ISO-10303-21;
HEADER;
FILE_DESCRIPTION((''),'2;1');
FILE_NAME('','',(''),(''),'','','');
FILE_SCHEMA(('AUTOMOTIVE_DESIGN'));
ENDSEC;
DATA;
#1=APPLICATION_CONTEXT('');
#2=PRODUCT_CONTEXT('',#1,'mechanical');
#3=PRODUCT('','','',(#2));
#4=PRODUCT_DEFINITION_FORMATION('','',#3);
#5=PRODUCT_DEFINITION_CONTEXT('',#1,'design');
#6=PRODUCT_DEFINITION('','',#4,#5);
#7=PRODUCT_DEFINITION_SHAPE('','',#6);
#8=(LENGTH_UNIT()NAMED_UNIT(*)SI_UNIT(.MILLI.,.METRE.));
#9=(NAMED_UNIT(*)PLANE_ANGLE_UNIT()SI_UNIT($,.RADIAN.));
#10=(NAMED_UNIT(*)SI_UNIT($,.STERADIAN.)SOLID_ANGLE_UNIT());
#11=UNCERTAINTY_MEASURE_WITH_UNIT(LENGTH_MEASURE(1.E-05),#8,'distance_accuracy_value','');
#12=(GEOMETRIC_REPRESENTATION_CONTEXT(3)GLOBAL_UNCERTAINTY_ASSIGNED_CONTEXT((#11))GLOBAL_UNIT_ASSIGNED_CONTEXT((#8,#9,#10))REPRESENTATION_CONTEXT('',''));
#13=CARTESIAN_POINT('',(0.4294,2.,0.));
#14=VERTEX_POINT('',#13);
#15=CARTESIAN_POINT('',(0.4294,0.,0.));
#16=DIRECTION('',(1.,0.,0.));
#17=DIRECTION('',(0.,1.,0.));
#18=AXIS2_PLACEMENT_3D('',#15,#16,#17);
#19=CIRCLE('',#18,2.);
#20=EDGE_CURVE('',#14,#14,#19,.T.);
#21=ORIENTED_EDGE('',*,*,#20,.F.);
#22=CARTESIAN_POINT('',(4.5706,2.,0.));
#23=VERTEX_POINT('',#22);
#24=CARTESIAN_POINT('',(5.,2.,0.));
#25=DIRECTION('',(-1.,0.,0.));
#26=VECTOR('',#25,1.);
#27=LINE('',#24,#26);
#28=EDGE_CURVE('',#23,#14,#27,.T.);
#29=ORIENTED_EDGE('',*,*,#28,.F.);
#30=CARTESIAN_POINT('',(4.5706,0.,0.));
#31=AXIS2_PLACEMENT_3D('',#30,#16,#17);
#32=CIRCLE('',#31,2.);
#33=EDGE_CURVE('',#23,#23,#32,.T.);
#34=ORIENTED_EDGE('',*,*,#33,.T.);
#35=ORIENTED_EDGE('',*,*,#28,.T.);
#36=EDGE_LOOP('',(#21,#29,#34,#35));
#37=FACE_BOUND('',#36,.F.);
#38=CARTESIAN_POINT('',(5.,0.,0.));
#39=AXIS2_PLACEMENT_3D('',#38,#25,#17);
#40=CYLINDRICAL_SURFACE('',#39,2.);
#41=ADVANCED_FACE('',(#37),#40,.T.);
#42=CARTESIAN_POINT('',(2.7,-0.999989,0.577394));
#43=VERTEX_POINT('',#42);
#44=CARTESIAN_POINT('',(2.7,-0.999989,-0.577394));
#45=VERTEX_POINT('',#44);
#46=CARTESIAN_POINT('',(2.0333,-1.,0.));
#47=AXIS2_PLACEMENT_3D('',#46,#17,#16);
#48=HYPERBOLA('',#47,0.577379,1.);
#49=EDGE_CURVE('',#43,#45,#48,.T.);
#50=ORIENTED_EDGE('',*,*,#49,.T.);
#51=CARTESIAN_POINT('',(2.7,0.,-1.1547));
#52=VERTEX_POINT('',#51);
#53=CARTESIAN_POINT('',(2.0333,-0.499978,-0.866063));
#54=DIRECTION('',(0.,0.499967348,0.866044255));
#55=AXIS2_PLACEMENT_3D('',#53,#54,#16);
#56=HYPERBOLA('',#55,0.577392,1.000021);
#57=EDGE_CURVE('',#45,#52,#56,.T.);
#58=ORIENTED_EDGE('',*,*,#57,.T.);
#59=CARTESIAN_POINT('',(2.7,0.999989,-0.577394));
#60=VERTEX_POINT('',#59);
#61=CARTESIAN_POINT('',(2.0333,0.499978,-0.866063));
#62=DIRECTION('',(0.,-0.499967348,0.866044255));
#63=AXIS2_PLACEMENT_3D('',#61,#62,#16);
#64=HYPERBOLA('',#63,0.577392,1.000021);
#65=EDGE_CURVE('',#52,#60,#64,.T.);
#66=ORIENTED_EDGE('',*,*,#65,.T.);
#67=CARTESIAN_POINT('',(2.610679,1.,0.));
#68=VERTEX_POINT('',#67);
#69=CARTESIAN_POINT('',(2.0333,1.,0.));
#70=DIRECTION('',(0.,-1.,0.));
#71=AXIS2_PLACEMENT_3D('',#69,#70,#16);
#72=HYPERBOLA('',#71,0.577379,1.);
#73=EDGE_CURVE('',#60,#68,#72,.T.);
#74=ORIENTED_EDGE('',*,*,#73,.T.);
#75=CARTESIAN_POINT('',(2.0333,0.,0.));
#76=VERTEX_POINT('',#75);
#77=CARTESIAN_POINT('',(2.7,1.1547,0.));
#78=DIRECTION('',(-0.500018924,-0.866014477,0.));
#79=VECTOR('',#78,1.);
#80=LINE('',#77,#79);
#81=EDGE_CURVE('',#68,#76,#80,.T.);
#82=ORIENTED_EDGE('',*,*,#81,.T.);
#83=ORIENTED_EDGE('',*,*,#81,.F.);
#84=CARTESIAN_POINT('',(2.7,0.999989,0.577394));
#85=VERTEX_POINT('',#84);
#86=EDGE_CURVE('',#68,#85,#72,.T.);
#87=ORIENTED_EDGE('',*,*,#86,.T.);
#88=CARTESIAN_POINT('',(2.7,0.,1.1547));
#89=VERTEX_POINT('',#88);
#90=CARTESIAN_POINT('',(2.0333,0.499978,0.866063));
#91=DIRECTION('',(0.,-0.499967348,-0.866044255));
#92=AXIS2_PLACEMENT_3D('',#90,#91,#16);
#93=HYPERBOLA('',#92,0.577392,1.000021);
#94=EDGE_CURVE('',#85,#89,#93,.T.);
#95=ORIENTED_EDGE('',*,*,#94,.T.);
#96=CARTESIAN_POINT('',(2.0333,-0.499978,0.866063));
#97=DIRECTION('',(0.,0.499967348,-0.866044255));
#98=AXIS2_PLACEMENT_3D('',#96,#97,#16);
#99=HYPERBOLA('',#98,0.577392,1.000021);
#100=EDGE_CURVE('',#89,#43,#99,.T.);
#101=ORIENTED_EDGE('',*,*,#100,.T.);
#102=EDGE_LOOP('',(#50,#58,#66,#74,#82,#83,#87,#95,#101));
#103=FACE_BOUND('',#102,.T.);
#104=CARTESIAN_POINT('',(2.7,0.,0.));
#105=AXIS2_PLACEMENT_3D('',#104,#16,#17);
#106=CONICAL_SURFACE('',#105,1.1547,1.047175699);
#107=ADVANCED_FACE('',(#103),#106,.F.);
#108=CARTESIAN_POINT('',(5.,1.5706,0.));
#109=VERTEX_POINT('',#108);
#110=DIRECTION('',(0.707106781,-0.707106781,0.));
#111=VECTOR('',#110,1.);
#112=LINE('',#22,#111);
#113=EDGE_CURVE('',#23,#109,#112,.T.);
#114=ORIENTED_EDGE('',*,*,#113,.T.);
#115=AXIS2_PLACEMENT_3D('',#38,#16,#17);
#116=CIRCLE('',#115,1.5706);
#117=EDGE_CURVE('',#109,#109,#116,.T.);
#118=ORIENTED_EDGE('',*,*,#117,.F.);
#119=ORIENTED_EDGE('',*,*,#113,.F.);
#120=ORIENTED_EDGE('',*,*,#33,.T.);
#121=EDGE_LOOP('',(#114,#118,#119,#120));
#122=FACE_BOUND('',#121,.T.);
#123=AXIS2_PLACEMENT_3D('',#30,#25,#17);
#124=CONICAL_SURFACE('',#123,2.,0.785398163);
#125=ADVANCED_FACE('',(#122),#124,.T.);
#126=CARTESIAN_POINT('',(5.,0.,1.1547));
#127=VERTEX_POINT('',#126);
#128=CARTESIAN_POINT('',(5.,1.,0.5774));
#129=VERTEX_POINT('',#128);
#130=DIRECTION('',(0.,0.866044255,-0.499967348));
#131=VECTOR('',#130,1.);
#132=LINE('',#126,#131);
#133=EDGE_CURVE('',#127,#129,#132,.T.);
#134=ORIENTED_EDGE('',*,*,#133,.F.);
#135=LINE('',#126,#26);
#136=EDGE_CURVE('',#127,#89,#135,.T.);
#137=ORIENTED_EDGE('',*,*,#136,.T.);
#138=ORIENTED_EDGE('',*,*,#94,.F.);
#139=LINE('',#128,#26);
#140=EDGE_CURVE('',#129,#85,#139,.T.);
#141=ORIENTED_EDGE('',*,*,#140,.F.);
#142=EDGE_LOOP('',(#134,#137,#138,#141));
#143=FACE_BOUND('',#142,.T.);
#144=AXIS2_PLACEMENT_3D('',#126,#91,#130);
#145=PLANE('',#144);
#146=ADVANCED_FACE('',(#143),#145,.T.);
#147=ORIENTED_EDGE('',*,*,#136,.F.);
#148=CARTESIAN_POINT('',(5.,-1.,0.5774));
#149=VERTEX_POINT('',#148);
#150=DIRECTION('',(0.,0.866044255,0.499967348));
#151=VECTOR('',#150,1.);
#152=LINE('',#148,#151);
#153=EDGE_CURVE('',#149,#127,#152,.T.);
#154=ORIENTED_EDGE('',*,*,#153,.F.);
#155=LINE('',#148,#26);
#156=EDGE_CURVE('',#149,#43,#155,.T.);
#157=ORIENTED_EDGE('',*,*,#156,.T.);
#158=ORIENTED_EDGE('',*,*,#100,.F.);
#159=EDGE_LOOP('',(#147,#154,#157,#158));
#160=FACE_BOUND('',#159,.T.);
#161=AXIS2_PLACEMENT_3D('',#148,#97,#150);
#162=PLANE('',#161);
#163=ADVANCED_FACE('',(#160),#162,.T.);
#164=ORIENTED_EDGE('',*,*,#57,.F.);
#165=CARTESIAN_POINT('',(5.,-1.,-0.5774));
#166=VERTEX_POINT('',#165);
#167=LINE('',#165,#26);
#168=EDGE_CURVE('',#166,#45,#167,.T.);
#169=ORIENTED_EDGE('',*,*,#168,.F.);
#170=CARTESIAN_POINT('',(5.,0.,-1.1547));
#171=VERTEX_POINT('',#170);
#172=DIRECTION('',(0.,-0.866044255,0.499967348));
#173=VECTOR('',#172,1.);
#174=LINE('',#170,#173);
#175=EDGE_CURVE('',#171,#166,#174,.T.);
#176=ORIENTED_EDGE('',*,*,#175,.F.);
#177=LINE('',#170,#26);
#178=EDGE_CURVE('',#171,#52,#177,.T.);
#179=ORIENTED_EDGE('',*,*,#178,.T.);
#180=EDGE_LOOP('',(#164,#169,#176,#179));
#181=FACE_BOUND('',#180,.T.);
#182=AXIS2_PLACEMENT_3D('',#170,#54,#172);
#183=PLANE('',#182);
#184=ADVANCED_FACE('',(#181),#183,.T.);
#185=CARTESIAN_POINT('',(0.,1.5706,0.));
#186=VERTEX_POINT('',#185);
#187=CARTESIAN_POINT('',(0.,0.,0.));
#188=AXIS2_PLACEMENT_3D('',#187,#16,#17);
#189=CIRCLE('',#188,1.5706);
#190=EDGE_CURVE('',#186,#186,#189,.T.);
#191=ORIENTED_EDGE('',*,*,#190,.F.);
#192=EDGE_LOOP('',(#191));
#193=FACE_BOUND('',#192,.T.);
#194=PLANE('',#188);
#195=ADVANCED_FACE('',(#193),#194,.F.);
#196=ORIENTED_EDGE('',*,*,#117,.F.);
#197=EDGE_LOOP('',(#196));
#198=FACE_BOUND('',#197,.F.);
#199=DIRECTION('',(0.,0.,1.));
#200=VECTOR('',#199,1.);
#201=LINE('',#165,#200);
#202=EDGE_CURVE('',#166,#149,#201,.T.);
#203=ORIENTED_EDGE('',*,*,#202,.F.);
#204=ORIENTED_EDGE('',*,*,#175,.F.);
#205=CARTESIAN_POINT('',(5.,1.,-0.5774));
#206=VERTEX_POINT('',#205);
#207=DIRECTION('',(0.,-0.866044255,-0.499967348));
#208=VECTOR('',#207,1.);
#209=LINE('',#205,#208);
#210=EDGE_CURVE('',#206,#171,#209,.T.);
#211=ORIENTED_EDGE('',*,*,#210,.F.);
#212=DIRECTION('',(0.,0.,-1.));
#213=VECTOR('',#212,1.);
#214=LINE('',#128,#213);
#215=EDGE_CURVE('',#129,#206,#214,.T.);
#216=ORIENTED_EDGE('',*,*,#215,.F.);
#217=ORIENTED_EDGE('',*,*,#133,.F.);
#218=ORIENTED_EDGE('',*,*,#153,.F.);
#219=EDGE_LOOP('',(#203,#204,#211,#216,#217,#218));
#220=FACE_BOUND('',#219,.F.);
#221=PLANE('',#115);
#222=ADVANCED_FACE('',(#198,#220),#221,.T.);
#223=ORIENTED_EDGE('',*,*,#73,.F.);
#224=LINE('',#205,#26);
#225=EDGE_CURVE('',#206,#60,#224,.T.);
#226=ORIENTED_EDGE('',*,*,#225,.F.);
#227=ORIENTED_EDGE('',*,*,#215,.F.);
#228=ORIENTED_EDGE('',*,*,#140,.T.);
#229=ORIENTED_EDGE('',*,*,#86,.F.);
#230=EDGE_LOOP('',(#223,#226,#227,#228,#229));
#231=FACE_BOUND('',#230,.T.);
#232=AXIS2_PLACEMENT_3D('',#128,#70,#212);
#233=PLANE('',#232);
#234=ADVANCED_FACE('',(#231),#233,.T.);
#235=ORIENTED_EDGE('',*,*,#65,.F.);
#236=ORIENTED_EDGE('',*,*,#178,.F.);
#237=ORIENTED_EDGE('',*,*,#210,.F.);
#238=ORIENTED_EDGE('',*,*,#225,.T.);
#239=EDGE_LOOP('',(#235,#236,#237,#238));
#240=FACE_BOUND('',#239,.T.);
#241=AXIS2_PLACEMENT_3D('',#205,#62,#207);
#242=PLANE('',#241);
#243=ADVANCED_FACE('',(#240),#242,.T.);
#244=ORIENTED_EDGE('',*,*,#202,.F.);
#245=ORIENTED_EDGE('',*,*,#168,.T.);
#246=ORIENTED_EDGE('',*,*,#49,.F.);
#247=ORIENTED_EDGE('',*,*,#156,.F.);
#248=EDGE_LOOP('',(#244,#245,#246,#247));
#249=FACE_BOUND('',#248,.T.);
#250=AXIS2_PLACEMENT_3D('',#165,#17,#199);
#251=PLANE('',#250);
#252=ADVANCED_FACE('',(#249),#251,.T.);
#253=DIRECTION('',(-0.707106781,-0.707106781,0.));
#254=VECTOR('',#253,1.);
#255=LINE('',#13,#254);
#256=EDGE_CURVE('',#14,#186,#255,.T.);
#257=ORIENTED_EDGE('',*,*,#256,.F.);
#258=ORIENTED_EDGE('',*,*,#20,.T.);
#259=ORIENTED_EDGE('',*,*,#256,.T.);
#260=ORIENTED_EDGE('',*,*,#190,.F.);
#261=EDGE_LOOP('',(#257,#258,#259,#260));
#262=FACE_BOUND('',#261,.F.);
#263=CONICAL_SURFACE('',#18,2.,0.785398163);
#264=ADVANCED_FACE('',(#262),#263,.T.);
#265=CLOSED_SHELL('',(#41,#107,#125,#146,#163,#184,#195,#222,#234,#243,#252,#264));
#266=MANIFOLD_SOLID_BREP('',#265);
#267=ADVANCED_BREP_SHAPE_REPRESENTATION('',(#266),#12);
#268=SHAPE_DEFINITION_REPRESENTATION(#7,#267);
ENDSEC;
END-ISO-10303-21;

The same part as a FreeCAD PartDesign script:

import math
import FreeCAD as App
import Part
import Sketcher
Q = App.Units.Quantity


def edges_at(feature, points):
    """Names of the edges that pass closest to the given points."""
    edges = feature.Shape.Edges
    near = lambda p: min(range(len(edges)), key=lambda i: edges[i].distToShape(Part.Vertex(*p))[0])
    return sorted({f"Edge{near(p) + 1}" for p in points})

doc = App.newDocument("Part")
body = doc.addObject("PartDesign::Body", "Body")

# Sketch on XY plane
sketch1 = body.newObject("Sketcher::SketchObject", "Sketch")
sketch1.AttachmentSupport = (doc.getObject("XY_Plane"), [""])
sketch1.MapMode = "FlatFace"
sketch1.addGeometry(Part.LineSegment(App.Vector(0, 2, 0), App.Vector(0, 0, 0)), False)
sketch1.addGeometry(Part.LineSegment(App.Vector(0, 0, 0), App.Vector(2.0333, 0, 0)), False)
sketch1.addGeometry(Part.LineSegment(App.Vector(2.0333, 0, 0), App.Vector(2.7, 1.1547, 0)), False)
sketch1.addGeometry(Part.LineSegment(App.Vector(2.7, 1.1547, 0), App.Vector(5, 1.1547, 0)), False)
sketch1.addGeometry(Part.LineSegment(App.Vector(5, 1.1547, 0), App.Vector(5, 2, 0)), False)
sketch1.addGeometry(Part.LineSegment(App.Vector(5, 2, 0), App.Vector(0, 2, 0)), False)
sketch1.addConstraint(Sketcher.Constraint("Coincident", 0, 2, 1, 1))
sketch1.addConstraint(Sketcher.Constraint("Coincident", 1, 2, 2, 1))
sketch1.addConstraint(Sketcher.Constraint("Coincident", 2, 2, 3, 1))
sketch1.addConstraint(Sketcher.Constraint("Coincident", 3, 2, 4, 1))
sketch1.addConstraint(Sketcher.Constraint("Coincident", 4, 2, 5, 1))
sketch1.addConstraint(Sketcher.Constraint("Coincident", 5, 2, 0, 1))
sketch1.addConstraint(Sketcher.Constraint("Vertical", 0))
sketch1.addConstraint(Sketcher.Constraint("Horizontal", 1))
sketch1.addConstraint(Sketcher.Constraint("Horizontal", 3))
sketch1.addConstraint(Sketcher.Constraint("Vertical", 4))
sketch1.addConstraint(Sketcher.Constraint("Horizontal", 5))
sketch1.addConstraint(Sketcher.Constraint("Coincident", 0, 2, -1, 1))
sketch1.addConstraint(Sketcher.Constraint("DistanceX", 5, 2, 5, 1, Q("5 mm")))
sketch1.addConstraint(Sketcher.Constraint("DistanceX", 3, 1, 3, 2, Q("2.3 mm")))
sketch1.addConstraint(Sketcher.Constraint("DistanceY", 0, 2, 0, 1, Q("2 mm")))
sketch1.addConstraint(Sketcher.Constraint("DistanceX", 1, 1, 1, 2, Q("2.0333 mm")))
sketch1.addConstraint(Sketcher.Constraint("DistanceY", 4, 1, 4, 2, Q("0.8453 mm")))
revolution = body.newObject("PartDesign::Revolution", "Revolution")
revolution.Profile = sketch1
revolution.ReferenceAxis = (sketch1, ["H_Axis"])
revolution.Angle = 360
doc.recompute()

chamfer = body.newObject("PartDesign::Chamfer", "Chamfer")
chamfer.Base = (revolution, edges_at(revolution, [(5, -2, 0)]))
chamfer.Size = 0.4294

# Sketch on YZ plane
sketch2 = body.newObject("Sketcher::SketchObject", "Sketch001")
sketch2.AttachmentSupport = (doc.getObject("YZ_Plane"), [""])
sketch2.MapMode = "FlatFace"
sketch2.AttachmentOffset = App.Placement(App.Vector(0, 0, 5), App.Rotation())
sketch2.addGeometry(Part.LineSegment(App.Vector(1, -0.5774, 0), App.Vector(0, -1.1547, 0)), False)
sketch2.addGeometry(Part.ArcOfCircle(Part.Circle(App.Vector(0, 0, 0), App.Vector(0, 0, 1), 1.1547), math.radians(-90), math.radians(-30.002137)), False)
sketch2.addGeometry(Part.ArcOfCircle(Part.Circle(App.Vector(0, 0, 0), App.Vector(0, 0, 1), 1.1547), math.radians(-149.997863), math.radians(-90)), False)
sketch2.addGeometry(Part.LineSegment(App.Vector(0, -1.1547, 0), App.Vector(-1, -0.5774, 0)), False)
sketch2.addGeometry(Part.LineSegment(App.Vector(1, 0.5774, 0), App.Vector(1, -0.5774, 0)), False)
sketch2.addGeometry(Part.ArcOfCircle(Part.Circle(App.Vector(0, 0, 0), App.Vector(0, 0, 1), 1.1547), math.radians(-30.002137), math.radians(30.002137)), False)
sketch2.addGeometry(Part.ArcOfCircle(Part.Circle(App.Vector(0, 0, 0), App.Vector(0, 0, 1), 1.1547), math.radians(149.997863), math.radians(210.002137)), False)
sketch2.addGeometry(Part.LineSegment(App.Vector(-1, 0.5774, 0), App.Vector(-1, -0.5774, 0)), False)
sketch2.addGeometry(Part.LineSegment(App.Vector(0, 1.1547, 0), App.Vector(1, 0.5774, 0)), False)
sketch2.addGeometry(Part.ArcOfCircle(Part.Circle(App.Vector(0, 0, 0), App.Vector(0, 0, 1), 1.1547), math.radians(30.002137), math.radians(90)), False)
sketch2.addGeometry(Part.ArcOfCircle(Part.Circle(App.Vector(0, 0, 0), App.Vector(0, 0, 1), 1.1547), math.radians(90), math.radians(149.997863)), False)
sketch2.addGeometry(Part.LineSegment(App.Vector(0, 1.1547, 0), App.Vector(-1, 0.5774, 0)), False)
sketch2.addConstraint(Sketcher.Constraint("Coincident", 0, 1, 1, 2))
sketch2.addConstraint(Sketcher.Constraint("Coincident", 1, 1, 0, 2))
sketch2.addConstraint(Sketcher.Constraint("Coincident", 2, 1, 3, 2))
sketch2.addConstraint(Sketcher.Constraint("Coincident", 3, 1, 2, 2))
sketch2.addConstraint(Sketcher.Constraint("Coincident", 4, 1, 5, 2))
sketch2.addConstraint(Sketcher.Constraint("Coincident", 5, 1, 4, 2))
sketch2.addConstraint(Sketcher.Constraint("Coincident", 6, 1, 7, 1))
sketch2.addConstraint(Sketcher.Constraint("Coincident", 7, 2, 6, 2))
sketch2.addConstraint(Sketcher.Constraint("Coincident", 8, 1, 9, 2))
sketch2.addConstraint(Sketcher.Constraint("Coincident", 9, 1, 8, 2))
sketch2.addConstraint(Sketcher.Constraint("Coincident", 10, 1, 11, 1))
sketch2.addConstraint(Sketcher.Constraint("Coincident", 11, 2, 10, 2))
sketch2.addConstraint(Sketcher.Constraint("Vertical", 4))
sketch2.addConstraint(Sketcher.Constraint("Vertical", 7))
sketch2.addConstraint(Sketcher.Constraint("Coincident", 1, 3, -1, 1))
sketch2.addConstraint(Sketcher.Constraint("Coincident", 2, 3, -1, 1))
sketch2.addConstraint(Sketcher.Constraint("Coincident", 5, 3, -1, 1))
sketch2.addConstraint(Sketcher.Constraint("Coincident", 6, 3, -1, 1))
sketch2.addConstraint(Sketcher.Constraint("Coincident", 9, 3, -1, 1))
sketch2.addConstraint(Sketcher.Constraint("Coincident", 10, 3, -1, 1))
sketch2.addConstraint(Sketcher.Constraint("Coincident", 3, 1, 1, 1))
sketch2.addConstraint(Sketcher.Constraint("Coincident", 5, 1, 0, 1))
sketch2.addConstraint(Sketcher.Constraint("Coincident", 7, 2, 2, 1))
sketch2.addConstraint(Sketcher.Constraint("Coincident", 9, 1, 4, 1))
sketch2.addConstraint(Sketcher.Constraint("Coincident", 10, 1, 8, 1))
sketch2.addConstraint(Sketcher.Constraint("PointOnObject", 1, 1, -2))
sketch2.addConstraint(Sketcher.Constraint("PointOnObject", 8, 1, -2))
sketch2.addConstraint(Sketcher.Constraint("Parallel", 3, 8))
sketch2.addConstraint(Sketcher.Constraint("Parallel", 0, 11))
sketch2.addConstraint(Sketcher.Constraint("DistanceX", -1, 1, 0, 1, Q("1 mm")))
sketch2.addConstraint(Sketcher.Constraint("Radius", 1, Q("1.1547 mm")))
pad1 = body.newObject("PartDesign::Pad", "Pad")
pad1.Profile = sketch2
pad1.Type = "UpToFirst"
pad1.Reversed = True
doc.recompute()

chamfer2 = body.newObject("PartDesign::Chamfer", "Chamfer001")
chamfer2.Base = (pad1, edges_at(pad1, [(0, -2, 0)]))
chamfer2.Size = 0.4294

doc.recompute()
